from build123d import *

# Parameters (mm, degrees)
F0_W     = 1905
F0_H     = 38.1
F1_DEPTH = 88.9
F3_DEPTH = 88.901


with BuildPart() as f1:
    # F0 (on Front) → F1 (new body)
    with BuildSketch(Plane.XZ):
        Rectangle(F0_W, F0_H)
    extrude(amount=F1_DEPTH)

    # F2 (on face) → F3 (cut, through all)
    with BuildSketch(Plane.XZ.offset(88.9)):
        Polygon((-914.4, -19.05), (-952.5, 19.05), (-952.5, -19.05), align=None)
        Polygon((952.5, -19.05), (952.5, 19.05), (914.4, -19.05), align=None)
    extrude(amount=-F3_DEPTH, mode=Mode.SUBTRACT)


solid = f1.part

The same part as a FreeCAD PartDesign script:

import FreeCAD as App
import Part
import Sketcher
Q = App.Units.Quantity

doc = App.newDocument("Part")
body = doc.addObject("PartDesign::Body", "Body")

sketch1 = body.newObject("Sketcher::SketchObject", "Sketch")
sketch1.AttachmentSupport = (doc.getObject("XZ_Plane"), [""])
sketch1.MapMode = "FlatFace"
sketch1.addGeometry([
    Part.LineSegment(App.Vector(-952.5, 19.05, 0), App.Vector(-952.5, -19.05, 0)),
    Part.LineSegment(App.Vector(-952.5, -19.05, 0), App.Vector(952.5, -19.05, 0)),
    Part.LineSegment(App.Vector(952.5, -19.05, 0), App.Vector(952.5, 19.05, 0)),
    Part.LineSegment(App.Vector(952.5, 19.05, 0), App.Vector(-952.5, 19.05, 0)),
], False)
sketch1.addConstraint([
    Sketcher.Constraint("Coincident", 0, 2, 1, 1),
    Sketcher.Constraint("Coincident", 1, 2, 2, 1),
    Sketcher.Constraint("Coincident", 2, 2, 3, 1),
    Sketcher.Constraint("Coincident", 3, 2, 0, 1),
    Sketcher.Constraint("Vertical", 0),
    Sketcher.Constraint("Horizontal", 1),
    Sketcher.Constraint("Vertical", 2),
    Sketcher.Constraint("Horizontal", 3),
    Sketcher.Constraint("Symmetric", 0, 2, 2, 2, -1, 1),
    Sketcher.Constraint("DistanceX", 1, 1, 1, 2, Q("75 in")),
    Sketcher.Constraint("DistanceY", 0, 2, 0, 1, Q("1.5 in")),
])
pad1 = body.newObject("PartDesign::Pad", "Pad")
pad1.Profile = sketch1
pad1.Length = Q("3.5 in")

sketch2 = body.newObject("Sketcher::SketchObject", "Sketch001")
sketch2.AttachmentSupport = (doc.getObject("XZ_Plane"), [""])
sketch2.MapMode = "FlatFace"
sketch2.AttachmentOffset = App.Placement(App.Vector(0, 0, 3.5 * 25.4), App.Rotation())
sketch2.addGeometry([
    Part.LineSegment(App.Vector(-914.4, -19.05, 0), App.Vector(-952.5, 19.05, 0)),
    Part.LineSegment(App.Vector(-952.5, 19.05, 0), App.Vector(-952.5, -19.05, 0)),
    Part.LineSegment(App.Vector(-952.5, -19.05, 0), App.Vector(-914.4, -19.05, 0)),
    Part.LineSegment(App.Vector(952.5, -19.05, 0), App.Vector(952.5, 19.05, 0)),
    Part.LineSegment(App.Vector(952.5, 19.05, 0), App.Vector(914.4, -19.05, 0)),
    Part.LineSegment(App.Vector(914.4, -19.05, 0), App.Vector(952.5, -19.05, 0)),
], False)
sketch2.addConstraint([
    Sketcher.Constraint("Coincident", 0, 2, 1, 1),
    Sketcher.Constraint("Coincident", 1, 2, 2, 1),
    Sketcher.Constraint("Coincident", 2, 2, 0, 1),
    Sketcher.Constraint("Coincident", 3, 2, 4, 1),
    Sketcher.Constraint("Coincident", 4, 2, 5, 1),
    Sketcher.Constraint("Coincident", 5, 2, 3, 1),
    Sketcher.Constraint("Vertical", 1),
    Sketcher.Constraint("Horizontal", 2),
    Sketcher.Constraint("Vertical", 3),
    Sketcher.Constraint("Horizontal", 5),
    Sketcher.Constraint("Symmetric", 1, 2, 3, 2, -1, 1),
    Sketcher.Constraint("Symmetric", 2, 2, 4, 2, -2),
    Sketcher.Constraint("Perpendicular", 0, 4),
    Sketcher.Constraint("Horizontal", 0, 2, 3, 2),
    Sketcher.Constraint("DistanceX", 2, 1, 2, 2, Q("1.5 in")),
    Sketcher.Constraint("DistanceX", 2, 2, -1, 1, Q("36 in")),
])
pocket1 = body.newObject("PartDesign::Pocket", "Pocket")
pocket1.Profile = sketch2
pocket1.Type = "ThroughAll"

doc.recompute()
